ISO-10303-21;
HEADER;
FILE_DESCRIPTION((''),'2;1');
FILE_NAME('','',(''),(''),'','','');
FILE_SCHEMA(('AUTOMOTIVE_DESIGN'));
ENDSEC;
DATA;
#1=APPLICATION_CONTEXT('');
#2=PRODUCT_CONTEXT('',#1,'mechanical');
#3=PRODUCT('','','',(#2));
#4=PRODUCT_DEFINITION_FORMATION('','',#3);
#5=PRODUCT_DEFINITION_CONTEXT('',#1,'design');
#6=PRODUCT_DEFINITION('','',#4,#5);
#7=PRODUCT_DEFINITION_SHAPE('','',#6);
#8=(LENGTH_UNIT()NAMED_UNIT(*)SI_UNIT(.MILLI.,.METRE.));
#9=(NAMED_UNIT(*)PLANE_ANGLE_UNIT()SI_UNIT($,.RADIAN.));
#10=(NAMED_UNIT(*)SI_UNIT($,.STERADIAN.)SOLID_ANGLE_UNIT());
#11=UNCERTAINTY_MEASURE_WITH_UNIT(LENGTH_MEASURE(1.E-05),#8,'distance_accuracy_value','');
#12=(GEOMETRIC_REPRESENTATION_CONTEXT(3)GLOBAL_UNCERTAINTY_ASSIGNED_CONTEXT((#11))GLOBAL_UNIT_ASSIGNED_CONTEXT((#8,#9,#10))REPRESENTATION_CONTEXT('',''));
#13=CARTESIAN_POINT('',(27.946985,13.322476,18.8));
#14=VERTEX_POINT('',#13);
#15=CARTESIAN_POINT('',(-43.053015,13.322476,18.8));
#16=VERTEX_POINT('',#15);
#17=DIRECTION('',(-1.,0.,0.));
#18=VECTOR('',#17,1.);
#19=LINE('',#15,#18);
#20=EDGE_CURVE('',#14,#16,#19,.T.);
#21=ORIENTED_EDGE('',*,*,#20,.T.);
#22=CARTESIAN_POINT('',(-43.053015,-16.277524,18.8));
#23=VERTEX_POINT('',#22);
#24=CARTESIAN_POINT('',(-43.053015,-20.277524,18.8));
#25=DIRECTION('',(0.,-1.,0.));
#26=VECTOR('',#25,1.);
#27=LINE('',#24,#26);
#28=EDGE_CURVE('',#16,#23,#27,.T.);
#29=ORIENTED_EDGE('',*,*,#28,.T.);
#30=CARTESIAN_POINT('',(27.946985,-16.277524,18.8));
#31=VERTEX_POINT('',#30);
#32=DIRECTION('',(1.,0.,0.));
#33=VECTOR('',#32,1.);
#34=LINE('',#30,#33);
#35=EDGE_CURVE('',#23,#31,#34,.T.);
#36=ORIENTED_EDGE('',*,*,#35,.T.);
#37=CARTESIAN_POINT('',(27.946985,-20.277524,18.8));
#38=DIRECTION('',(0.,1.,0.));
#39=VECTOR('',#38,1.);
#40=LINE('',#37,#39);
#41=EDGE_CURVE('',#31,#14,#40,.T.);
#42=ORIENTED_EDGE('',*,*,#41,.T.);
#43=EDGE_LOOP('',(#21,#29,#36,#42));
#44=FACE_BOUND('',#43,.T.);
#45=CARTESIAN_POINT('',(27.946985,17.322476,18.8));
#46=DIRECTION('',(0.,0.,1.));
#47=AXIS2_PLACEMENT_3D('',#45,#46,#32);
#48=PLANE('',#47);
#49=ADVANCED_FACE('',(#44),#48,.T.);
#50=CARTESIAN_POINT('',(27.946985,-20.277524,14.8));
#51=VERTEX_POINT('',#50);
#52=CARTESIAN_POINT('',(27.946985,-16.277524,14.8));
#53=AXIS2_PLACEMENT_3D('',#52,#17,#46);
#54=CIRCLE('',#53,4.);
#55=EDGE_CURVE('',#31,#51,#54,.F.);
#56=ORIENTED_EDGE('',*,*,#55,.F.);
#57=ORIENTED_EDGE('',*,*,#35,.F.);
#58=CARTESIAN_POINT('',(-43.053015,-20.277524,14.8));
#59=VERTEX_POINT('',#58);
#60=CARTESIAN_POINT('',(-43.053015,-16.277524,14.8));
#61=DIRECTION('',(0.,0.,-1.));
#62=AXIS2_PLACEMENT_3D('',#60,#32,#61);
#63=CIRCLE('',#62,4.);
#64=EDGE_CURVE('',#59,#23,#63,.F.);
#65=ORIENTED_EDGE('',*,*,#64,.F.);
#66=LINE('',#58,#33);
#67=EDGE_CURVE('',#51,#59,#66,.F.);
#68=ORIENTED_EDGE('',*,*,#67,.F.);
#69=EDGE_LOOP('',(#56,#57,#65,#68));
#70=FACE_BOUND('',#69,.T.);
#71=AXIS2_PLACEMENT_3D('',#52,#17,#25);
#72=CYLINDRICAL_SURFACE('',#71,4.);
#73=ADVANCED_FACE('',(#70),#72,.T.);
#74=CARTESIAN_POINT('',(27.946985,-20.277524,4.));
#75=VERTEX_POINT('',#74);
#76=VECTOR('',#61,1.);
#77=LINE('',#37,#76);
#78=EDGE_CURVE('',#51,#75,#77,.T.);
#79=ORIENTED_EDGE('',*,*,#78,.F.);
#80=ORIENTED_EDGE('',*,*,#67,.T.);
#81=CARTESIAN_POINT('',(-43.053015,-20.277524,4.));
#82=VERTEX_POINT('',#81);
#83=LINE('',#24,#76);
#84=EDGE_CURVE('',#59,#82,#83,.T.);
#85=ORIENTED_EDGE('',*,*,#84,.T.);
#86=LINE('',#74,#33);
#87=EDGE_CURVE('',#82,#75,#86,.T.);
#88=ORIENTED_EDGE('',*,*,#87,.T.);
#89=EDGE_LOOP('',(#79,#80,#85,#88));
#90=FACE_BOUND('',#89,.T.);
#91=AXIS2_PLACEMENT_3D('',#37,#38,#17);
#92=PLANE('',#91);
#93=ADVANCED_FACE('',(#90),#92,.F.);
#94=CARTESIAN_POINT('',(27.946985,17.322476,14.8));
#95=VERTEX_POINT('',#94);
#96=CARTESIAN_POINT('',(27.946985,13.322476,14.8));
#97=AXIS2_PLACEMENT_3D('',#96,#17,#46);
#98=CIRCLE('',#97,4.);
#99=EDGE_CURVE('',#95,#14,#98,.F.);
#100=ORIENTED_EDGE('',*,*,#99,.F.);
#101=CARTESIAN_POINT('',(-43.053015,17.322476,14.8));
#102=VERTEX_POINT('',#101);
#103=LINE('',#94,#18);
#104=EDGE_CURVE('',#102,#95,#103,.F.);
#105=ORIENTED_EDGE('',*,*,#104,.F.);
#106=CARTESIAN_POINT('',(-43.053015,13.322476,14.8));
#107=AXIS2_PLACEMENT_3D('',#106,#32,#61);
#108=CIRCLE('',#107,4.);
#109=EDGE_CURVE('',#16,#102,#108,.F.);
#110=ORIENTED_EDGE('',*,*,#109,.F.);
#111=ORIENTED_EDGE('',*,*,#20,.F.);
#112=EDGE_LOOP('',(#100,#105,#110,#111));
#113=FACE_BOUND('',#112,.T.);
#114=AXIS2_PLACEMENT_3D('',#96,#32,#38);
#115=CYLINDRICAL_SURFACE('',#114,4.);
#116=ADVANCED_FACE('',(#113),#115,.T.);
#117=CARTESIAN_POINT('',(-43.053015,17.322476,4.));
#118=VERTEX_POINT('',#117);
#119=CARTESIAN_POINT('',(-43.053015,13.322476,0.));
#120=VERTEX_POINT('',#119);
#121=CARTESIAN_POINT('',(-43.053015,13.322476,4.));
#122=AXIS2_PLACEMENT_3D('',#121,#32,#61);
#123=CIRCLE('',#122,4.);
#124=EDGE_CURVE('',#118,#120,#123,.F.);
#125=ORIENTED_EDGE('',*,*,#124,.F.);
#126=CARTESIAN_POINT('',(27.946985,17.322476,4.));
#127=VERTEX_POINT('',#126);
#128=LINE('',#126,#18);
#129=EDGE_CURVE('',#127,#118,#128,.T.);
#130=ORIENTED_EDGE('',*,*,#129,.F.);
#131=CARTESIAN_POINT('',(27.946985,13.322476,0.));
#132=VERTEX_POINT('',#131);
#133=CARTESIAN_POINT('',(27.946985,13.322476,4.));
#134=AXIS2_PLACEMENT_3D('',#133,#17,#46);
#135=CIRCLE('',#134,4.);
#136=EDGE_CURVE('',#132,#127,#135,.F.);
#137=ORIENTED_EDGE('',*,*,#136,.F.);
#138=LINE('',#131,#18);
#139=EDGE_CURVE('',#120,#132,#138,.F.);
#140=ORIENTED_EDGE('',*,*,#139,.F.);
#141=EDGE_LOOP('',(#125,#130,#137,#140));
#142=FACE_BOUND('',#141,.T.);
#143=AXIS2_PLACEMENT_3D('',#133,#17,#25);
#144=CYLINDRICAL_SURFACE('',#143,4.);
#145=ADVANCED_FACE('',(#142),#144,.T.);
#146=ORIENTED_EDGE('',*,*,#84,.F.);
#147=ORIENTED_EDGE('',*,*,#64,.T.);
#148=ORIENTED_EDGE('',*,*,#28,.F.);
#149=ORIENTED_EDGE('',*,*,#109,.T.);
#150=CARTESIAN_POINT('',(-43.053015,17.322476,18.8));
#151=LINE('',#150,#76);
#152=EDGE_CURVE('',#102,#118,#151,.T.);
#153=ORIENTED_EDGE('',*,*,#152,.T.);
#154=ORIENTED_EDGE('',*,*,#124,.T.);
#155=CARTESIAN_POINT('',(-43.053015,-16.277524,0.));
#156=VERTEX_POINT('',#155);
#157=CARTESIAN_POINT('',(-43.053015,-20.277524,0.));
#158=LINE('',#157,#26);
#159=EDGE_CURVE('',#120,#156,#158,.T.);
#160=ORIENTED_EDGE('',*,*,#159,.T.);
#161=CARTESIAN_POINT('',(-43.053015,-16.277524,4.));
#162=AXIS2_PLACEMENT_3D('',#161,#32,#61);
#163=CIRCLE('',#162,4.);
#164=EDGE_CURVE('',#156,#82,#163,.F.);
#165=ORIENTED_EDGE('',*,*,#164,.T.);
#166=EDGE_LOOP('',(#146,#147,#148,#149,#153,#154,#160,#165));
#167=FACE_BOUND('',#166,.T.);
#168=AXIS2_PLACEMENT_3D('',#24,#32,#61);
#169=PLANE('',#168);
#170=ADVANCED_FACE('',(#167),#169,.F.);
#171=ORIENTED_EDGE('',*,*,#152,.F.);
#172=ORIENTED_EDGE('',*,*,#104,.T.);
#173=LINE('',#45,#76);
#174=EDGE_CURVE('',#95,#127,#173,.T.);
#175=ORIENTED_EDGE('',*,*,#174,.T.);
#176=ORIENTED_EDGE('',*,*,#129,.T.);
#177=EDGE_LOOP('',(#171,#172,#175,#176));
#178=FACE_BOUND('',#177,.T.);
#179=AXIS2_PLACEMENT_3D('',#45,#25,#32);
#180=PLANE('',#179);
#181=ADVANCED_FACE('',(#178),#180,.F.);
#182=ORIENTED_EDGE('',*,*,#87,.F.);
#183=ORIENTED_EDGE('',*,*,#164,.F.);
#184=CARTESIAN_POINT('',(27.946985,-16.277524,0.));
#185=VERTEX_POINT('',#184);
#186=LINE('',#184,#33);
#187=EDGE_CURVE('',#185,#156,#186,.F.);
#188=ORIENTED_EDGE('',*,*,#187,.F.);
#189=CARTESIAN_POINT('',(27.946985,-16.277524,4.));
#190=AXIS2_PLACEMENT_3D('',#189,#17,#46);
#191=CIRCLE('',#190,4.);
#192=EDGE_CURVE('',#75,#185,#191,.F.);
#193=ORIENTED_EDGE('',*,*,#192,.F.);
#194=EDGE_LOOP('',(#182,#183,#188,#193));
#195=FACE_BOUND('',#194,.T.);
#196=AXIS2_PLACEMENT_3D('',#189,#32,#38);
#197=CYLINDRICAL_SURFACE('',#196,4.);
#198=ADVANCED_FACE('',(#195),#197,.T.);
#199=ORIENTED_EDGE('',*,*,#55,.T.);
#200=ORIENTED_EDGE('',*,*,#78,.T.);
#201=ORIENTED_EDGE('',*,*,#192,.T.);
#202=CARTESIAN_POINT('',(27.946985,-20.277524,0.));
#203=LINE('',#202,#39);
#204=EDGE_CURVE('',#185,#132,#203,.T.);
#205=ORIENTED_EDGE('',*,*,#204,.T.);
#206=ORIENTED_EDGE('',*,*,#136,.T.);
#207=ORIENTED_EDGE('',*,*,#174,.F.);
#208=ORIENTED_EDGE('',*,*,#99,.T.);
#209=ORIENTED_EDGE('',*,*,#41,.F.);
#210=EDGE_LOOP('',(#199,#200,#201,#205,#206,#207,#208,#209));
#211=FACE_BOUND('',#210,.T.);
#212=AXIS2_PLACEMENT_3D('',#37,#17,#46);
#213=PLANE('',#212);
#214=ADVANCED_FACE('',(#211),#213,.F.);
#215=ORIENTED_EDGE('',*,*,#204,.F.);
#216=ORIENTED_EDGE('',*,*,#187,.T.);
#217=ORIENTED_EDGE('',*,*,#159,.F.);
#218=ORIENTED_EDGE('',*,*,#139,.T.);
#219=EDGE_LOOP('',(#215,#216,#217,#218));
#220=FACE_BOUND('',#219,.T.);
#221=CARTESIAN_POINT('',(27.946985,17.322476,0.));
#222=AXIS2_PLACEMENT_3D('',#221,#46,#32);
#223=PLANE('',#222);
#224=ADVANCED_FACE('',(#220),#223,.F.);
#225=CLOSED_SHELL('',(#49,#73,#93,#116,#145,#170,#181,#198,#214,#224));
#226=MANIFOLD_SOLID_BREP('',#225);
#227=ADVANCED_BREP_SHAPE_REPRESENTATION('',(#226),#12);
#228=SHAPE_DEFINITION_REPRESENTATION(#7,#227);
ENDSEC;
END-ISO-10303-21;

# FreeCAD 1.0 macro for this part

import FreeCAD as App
import Part
import Sketcher
Q = App.Units.Quantity


def edges_at(feature, points):
    """Names of the edges that pass closest to the given points."""
    edges = feature.Shape.Edges
    near = lambda p: min(range(len(edges)), key=lambda i: edges[i].distToShape(Part.Vertex(*p))[0])
    return sorted({f"Edge{near(p) + 1}" for p in points})


def add_polygon(sketch, points):
    """Adds a closed chain of lines whose ends are joined by coincident constraints."""
    first, n = sketch.GeometryCount, len(points)
    for a, b in zip(points, points[1:] + points[:1]):
        sketch.addGeometry(Part.LineSegment(App.Vector(*a, 0), App.Vector(*b, 0)), False)
    for i in range(n):
        sketch.addConstraint(Sketcher.Constraint("Coincident", first + i, 2, first + (i + 1) % n, 1))

doc = App.newDocument("Part")
body = doc.addObject("PartDesign::Body", "Body")

sketch1 = doc.addObject("Sketcher::SketchObject", "Sketch")
body.addObject(sketch1)
sketch1.AttachmentSupport = (doc.XY_Plane, [""])
sketch1.MapMode = "FlatFace"
add_polygon(sketch1, [(-43.053015, 17.322476), (-43.053015, -20.277524), (27.946985, -20.277524), (27.946985, 17.322476)])
sketch1.addConstraint(Sketcher.Constraint("Vertical", 0))
sketch1.addConstraint(Sketcher.Constraint("Horizontal", 1))
sketch1.addConstraint(Sketcher.Constraint("Vertical", 2))
sketch1.addConstraint(Sketcher.Constraint("Horizontal", 3))
sketch1.addConstraint(Sketcher.Constraint("DistanceX", 1, 1, 1, 2, Q("71 mm")))
sketch1.addConstraint(Sketcher.Constraint("DistanceY", 0, 2, 0, 1, Q("37.6 mm")))
sketch1.addConstraint(Sketcher.Constraint("DistanceX", 0, 2, -1, 1, Q("43.053015 mm")))
sketch1.addConstraint(Sketcher.Constraint("DistanceY", 0, 2, -1, 1, Q("20.277524 mm")))
pad1 = doc.addObject("PartDesign::Pad", "Pad")
body.addObject(pad1)
pad1.Profile = sketch1
pad1.Length = 18.8
doc.recompute()

fillet = doc.addObject("PartDesign::Fillet", "Fillet")
body.addObject(fillet)
fillet.Base = (pad1, edges_at(pad1, [(-7.553, 17.322, 18.8)]))
fillet.Radius = 4
doc.recompute()

fillet2 = doc.addObject("PartDesign::Fillet", "Fillet001")
body.addObject(fillet2)
fillet2.Base = (fillet, edges_at(fillet, [(-7.553, -20.278, 18.8), (-7.553, 17.322, 0)]))
fillet2.Radius = 4
doc.recompute()

fillet3 = doc.addObject("PartDesign::Fillet", "Fillet002")
body.addObject(fillet3)
fillet3.Base = (fillet2, edges_at(fillet2, [(-7.553, -20.278, 0)]))
fillet3.Radius = 4

doc.recompute()
